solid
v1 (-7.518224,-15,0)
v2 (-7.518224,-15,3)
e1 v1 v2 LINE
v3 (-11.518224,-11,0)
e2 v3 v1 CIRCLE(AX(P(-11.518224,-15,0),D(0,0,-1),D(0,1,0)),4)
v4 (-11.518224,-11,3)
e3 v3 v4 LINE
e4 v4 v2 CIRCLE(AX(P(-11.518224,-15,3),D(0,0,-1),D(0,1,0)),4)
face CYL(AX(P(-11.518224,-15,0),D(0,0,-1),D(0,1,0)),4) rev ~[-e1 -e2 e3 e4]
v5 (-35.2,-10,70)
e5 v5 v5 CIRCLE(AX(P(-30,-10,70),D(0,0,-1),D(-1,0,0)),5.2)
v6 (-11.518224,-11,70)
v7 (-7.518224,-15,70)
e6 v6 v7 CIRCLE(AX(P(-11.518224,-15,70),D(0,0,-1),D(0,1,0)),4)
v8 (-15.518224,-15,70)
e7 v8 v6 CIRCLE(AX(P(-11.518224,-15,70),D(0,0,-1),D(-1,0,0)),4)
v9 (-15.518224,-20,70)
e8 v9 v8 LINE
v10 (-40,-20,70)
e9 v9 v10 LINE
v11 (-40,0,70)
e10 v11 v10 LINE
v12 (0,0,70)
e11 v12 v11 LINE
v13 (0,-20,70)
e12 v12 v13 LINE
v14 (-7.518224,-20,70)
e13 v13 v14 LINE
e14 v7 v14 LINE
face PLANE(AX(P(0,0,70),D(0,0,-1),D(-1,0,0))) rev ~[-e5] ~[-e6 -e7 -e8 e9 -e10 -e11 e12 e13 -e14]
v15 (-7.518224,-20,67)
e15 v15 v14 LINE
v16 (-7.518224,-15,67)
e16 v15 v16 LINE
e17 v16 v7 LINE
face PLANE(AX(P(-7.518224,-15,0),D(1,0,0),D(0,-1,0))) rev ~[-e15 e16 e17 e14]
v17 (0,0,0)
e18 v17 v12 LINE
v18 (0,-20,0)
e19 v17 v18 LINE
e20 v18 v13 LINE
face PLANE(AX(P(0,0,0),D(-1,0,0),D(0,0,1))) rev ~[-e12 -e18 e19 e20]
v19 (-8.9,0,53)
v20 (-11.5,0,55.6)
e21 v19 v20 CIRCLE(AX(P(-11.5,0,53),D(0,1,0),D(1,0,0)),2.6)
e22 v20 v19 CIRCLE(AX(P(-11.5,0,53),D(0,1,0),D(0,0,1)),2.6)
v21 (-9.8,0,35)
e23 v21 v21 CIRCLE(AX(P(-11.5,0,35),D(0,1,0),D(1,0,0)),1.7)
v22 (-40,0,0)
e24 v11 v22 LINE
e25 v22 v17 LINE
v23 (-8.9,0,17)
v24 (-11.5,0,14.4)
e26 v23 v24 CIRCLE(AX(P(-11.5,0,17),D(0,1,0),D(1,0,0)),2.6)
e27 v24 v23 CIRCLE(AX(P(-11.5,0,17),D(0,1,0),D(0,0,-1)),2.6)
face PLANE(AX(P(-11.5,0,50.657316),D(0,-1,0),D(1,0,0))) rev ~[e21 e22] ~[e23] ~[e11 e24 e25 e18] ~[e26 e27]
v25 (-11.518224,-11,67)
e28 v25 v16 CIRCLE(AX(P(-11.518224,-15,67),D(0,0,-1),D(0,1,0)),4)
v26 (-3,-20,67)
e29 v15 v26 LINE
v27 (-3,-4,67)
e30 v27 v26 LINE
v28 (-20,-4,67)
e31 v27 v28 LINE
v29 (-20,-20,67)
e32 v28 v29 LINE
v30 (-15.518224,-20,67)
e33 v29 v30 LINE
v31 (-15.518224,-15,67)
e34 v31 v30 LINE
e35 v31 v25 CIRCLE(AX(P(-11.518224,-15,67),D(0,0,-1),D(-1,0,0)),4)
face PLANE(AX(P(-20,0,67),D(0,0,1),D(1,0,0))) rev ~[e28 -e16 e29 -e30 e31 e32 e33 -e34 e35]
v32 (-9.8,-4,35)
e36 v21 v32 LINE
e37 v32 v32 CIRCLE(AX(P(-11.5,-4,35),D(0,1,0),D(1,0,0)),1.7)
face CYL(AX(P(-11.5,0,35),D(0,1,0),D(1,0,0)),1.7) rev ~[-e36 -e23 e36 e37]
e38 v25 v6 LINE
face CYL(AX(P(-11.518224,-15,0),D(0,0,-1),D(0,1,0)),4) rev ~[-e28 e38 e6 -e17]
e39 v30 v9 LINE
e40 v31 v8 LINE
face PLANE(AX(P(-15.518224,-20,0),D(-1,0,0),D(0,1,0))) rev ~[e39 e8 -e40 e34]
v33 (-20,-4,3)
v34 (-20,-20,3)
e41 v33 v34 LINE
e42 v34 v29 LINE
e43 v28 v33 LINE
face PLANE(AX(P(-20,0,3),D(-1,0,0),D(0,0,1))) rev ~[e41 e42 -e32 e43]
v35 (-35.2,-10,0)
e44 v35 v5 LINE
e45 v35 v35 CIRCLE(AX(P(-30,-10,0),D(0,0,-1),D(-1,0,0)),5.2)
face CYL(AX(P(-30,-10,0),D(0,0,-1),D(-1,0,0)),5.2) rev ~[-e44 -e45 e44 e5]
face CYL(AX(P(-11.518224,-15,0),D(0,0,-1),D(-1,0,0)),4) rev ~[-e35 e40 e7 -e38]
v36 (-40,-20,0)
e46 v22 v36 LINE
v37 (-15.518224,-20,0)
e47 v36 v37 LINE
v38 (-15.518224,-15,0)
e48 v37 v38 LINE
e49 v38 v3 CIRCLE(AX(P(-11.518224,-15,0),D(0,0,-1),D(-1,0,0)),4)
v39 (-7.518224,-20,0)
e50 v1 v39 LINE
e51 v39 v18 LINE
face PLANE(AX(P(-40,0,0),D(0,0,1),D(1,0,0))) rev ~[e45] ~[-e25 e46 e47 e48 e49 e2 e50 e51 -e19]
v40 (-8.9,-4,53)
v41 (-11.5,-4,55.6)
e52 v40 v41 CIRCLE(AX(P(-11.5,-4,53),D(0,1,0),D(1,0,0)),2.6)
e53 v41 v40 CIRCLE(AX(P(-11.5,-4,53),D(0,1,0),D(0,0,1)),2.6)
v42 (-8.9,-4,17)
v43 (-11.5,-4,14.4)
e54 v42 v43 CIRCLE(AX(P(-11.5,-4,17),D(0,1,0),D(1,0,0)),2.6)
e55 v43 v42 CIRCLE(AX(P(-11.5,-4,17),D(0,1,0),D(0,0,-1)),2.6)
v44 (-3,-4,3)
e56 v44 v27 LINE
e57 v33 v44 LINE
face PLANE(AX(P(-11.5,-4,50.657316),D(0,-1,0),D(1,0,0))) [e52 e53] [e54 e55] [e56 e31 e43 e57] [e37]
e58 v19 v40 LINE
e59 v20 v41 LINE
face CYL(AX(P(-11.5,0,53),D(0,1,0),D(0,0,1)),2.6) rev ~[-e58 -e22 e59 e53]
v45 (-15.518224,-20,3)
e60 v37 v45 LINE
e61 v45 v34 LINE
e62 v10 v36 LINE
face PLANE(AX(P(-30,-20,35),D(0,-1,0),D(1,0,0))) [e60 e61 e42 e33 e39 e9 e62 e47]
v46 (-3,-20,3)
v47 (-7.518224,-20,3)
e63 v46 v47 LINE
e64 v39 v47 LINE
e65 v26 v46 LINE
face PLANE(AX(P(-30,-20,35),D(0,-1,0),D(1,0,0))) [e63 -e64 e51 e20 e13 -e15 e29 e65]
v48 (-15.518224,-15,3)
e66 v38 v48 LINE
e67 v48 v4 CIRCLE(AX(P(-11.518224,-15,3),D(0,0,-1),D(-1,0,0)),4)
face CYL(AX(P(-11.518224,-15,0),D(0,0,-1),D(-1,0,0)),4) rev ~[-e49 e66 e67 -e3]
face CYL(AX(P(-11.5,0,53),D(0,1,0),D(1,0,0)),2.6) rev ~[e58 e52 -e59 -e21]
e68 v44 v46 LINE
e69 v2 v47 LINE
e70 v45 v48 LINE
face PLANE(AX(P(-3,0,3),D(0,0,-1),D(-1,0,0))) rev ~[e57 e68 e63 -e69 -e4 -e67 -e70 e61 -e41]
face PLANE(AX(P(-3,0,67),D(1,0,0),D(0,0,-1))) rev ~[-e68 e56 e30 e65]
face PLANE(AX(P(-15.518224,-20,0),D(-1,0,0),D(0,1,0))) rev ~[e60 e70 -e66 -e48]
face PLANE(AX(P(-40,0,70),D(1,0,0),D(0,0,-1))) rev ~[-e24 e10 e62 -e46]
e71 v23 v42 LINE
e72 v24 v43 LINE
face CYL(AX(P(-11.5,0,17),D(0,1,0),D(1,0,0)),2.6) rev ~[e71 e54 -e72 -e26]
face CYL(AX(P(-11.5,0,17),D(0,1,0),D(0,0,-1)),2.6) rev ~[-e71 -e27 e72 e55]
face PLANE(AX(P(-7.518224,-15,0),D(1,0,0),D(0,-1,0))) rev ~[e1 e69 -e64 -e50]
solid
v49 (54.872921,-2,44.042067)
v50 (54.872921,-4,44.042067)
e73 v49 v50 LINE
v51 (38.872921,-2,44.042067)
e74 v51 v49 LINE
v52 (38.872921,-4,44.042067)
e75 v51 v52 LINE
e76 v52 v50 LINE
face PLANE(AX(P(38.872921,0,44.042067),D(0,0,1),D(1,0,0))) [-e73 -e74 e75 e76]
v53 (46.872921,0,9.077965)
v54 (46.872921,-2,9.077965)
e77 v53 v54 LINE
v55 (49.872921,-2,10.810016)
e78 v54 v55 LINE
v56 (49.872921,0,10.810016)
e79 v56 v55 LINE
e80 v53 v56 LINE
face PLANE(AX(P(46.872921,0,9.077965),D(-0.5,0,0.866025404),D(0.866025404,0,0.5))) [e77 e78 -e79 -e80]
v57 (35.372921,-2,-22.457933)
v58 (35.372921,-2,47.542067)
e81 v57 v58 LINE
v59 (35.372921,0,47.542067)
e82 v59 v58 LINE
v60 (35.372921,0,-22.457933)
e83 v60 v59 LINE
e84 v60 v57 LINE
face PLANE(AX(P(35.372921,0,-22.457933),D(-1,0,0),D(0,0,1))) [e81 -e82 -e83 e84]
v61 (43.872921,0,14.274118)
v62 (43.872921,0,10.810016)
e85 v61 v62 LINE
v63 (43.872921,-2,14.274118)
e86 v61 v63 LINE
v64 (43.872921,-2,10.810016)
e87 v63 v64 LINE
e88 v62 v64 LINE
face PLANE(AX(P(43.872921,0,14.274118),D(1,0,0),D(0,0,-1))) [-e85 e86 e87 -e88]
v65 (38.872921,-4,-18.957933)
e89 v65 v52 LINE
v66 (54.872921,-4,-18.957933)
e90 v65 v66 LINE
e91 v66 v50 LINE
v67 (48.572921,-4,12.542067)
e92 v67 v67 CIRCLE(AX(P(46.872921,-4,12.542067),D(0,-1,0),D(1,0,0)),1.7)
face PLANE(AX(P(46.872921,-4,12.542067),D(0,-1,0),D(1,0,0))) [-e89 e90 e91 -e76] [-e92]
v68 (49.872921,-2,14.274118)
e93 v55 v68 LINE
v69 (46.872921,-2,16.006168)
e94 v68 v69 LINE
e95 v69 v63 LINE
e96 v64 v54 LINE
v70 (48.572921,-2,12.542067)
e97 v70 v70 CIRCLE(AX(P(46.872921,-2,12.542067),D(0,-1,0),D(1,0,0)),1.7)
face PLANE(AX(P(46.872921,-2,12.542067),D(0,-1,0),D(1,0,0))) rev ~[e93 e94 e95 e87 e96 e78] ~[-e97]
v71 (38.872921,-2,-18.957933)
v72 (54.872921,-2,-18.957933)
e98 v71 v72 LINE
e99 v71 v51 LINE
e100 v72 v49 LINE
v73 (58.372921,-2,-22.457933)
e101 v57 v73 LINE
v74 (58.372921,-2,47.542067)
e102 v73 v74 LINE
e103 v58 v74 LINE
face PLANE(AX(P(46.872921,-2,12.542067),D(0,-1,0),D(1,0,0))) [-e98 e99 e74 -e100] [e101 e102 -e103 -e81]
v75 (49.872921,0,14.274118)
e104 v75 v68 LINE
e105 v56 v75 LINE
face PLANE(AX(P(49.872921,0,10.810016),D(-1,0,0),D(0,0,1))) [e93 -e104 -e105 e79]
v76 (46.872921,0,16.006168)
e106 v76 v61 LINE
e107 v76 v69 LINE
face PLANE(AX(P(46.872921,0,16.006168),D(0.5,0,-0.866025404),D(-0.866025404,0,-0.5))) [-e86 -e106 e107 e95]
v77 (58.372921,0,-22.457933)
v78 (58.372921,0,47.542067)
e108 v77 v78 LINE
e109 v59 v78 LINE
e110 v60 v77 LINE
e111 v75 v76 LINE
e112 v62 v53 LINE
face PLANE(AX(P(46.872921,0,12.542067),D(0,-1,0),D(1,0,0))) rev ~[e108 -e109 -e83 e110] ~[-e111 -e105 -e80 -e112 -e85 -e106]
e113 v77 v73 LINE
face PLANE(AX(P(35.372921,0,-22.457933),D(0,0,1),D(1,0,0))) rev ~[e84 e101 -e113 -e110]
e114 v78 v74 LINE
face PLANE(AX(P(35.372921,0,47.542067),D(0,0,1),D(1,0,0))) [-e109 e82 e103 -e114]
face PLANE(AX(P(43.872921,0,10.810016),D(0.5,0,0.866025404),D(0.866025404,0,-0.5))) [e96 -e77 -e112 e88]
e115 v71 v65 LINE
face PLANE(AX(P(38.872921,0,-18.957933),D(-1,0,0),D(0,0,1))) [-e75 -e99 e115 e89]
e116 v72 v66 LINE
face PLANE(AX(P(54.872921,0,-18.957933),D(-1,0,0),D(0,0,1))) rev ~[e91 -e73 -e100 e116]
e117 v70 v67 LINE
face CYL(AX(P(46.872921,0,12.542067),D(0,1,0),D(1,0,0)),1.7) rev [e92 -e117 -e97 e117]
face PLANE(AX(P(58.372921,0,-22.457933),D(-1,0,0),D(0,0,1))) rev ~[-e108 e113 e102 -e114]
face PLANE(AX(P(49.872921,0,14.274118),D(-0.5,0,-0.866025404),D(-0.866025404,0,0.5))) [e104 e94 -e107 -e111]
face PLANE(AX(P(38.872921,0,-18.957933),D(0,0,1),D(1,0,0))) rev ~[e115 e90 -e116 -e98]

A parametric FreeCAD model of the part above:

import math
import FreeCAD as App
import Part
import Sketcher

V = App.Vector
Q = App.Units.Quantity


def add_polygon(sketch, points):
    """Adds a closed chain of lines whose ends are joined by coincident constraints."""
    first, n = sketch.GeometryCount, len(points)
    for a, b in zip(points, points[1:] + points[:1]):
        sketch.addGeometry(Part.LineSegment(App.Vector(*a, 0), App.Vector(*b, 0)), False)
    for i in range(n):
        sketch.addConstraint(Sketcher.Constraint("Coincident", first + i, 2, first + (i + 1) % n, 1))

doc = App.newDocument("Part")
body = doc.addObject("PartDesign::Body", "Body")

sketch1 = body.newObject("Sketcher::SketchObject", "Sketch")
sketch1.AttachmentSupport = (doc.getObject("XZ_Plane"), [""])
sketch1.MapMode = "FlatFace"
add_polygon(sketch1, [(-40, 0), (0, 0), (0, 70), (-40, 70)])
add_polygon(sketch1, [(-20, 3), (-20, 67), (-3, 67), (-3, 3)])
sketch1.addConstraint([
    Sketcher.Constraint("Horizontal", 0),
    Sketcher.Constraint("Vertical", 1),
    Sketcher.Constraint("Horizontal", 2),
    Sketcher.Constraint("Vertical", 3),
    Sketcher.Constraint("Vertical", 4),
    Sketcher.Constraint("Horizontal", 5),
    Sketcher.Constraint("Vertical", 6),
    Sketcher.Constraint("Horizontal", 7),
    Sketcher.Constraint("Coincident", 0, 2, -1, 1),
    Sketcher.Constraint("DistanceX", 0, 1, 0, 2, 40.0),
    Sketcher.Constraint("DistanceX", 5, 1, 5, 2, 17.0),
    Sketcher.Constraint("DistanceY", 1, 1, 1, 2, 70.0),
    Sketcher.Constraint("DistanceY", 4, 1, 4, 2, 64.0),
    Sketcher.Constraint("DistanceX", 4, 2, -1, 1, 20.0),
    Sketcher.Constraint("DistanceY", -1, 1, 4, 2, 67.0),
])
pad1 = body.newObject("PartDesign::Pad", "Pad")
pad1.Profile = sketch1
pad1.Length = 20

sketch2 = body.newObject("Sketcher::SketchObject", "Sketch001")
sketch2.AttachmentSupport = (doc.getObject("XZ_Plane"), [""])
sketch2.MapMode = "FlatFace"
add_polygon(sketch2, [(-20, 67), (-20, 3), (-3, 3), (-3, 67)])
sketch2.addGeometry(Part.ArcOfCircle(Part.Circle(V(-11.5, 17, 0), V(0, 0, 1), 2.6), math.radians(0), math.radians(270)), False)
sketch2.addGeometry(Part.ArcOfCircle(Part.Circle(V(-11.5, 17, 0), V(0, 0, 1), 2.6), math.radians(-90), math.radians(0)), False)
sketch2.addGeometry(Part.ArcOfCircle(Part.Circle(V(-11.5, 53, 0), V(0, 0, 1), 2.6), math.radians(0), math.radians(90)), False)
sketch2.addGeometry(Part.ArcOfCircle(Part.Circle(V(-11.5, 53, 0), V(0, 0, 1), 2.6), math.radians(90), math.radians(360)), False)
sketch2.addGeometry(Part.Circle(V(-11.5, 35, 0), V(0, 0, 1), 1.7), False)
sketch2.addConstraint([
    Sketcher.Constraint("Tangent", 4, 1, 5, 2),
    Sketcher.Constraint("Coincident", 5, 1, 4, 2),
    Sketcher.Constraint("Tangent", 6, 1, 7, 2),
    Sketcher.Constraint("Coincident", 7, 1, 6, 2),
    Sketcher.Constraint("Vertical", 0),
    Sketcher.Constraint("Horizontal", 1),
    Sketcher.Constraint("Vertical", 2),
    Sketcher.Constraint("Horizontal", 3),
    Sketcher.Constraint("Equal", 5, 6),
    Sketcher.Constraint("Horizontal", 5, 3, 4, 1),
    Sketcher.Constraint("Horizontal", 7, 3, 6, 1),
    Sketcher.Constraint("Vertical", 5, 3, 6, 3),
    Sketcher.Constraint("Vertical", 7, 3, 8, 3),
    Sketcher.Constraint("Vertical", 8, 3, 5, 1),
    Sketcher.Constraint("Vertical", 5, 1, 7, 1),
    Sketcher.Constraint("Diameter", 8, 3.4),
    Sketcher.Constraint("Radius", 4, 2.6),
    Sketcher.Constraint("DistanceX", 1, 1, 1, 2, 17.0),
    Sketcher.Constraint("DistanceY", 0, 2, 0, 1, 64.0),
    Sketcher.Constraint("DistanceY", -1, 1, 4, 3, 17.0),
    Sketcher.Constraint("DistanceY", -1, 1, 6, 3, 53.0),
    Sketcher.Constraint("DistanceY", -1, 1, 8, 3, 35.0),
    Sketcher.Constraint("DistanceX", 0, 2, -1, 1, 20.0),
    Sketcher.Constraint("DistanceY", -1, 1, 0, 2, 3.0),
    Sketcher.Constraint("DistanceX", 4, 3, -1, 1, 11.5),
])
pad2 = body.newObject("PartDesign::Pad", "Pad001")
pad2.Profile = sketch2
pad2.Length = 4

sketch3 = body.newObject("Sketcher::SketchObject", "Sketch002")
sketch3.AttachmentSupport = (doc.getObject("XY_Plane"), [""])
sketch3.MapMode = "FlatFace"
sketch3.addGeometry([
    Part.ArcOfCircle(Part.Circle(V(-11.5, -15, 0), V(0, 0, 1), 4), math.radians(90), math.radians(180)),
    Part.ArcOfCircle(Part.Circle(V(-11.5, -15, 0), V(0, 0, 1), 4), math.radians(0), math.radians(90)),
    Part.LineSegment(V(-7.5, -15, 0), V(-7.5, -20, 0)),
    Part.LineSegment(V(-7.5, -20, 0), V(-15.5, -20, 0)),
    Part.LineSegment(V(-15.5, -20, 0), V(-15.5, -15, 0)),
], False)
sketch3.addConstraint([
    Sketcher.Constraint("Tangent", 0, 1, 1, 2),
    Sketcher.Constraint("Tangent", 1, 1, 2, 1),
    Sketcher.Constraint("Coincident", 2, 2, 3, 1),
    Sketcher.Constraint("Coincident", 3, 2, 4, 1),
    Sketcher.Constraint("Tangent", 4, 2, 0, 2),
    Sketcher.Constraint("Vertical", 2),
    Sketcher.Constraint("Horizontal", 3),
    Sketcher.Constraint("Vertical", 4),
    Sketcher.Constraint("Equal", 0, 1),
    Sketcher.Constraint("Vertical", 1, 3, 0, 1),
    Sketcher.Constraint("Radius", 0, 4.0),
    Sketcher.Constraint("DistanceY", 2, 2, 2, 1, 5.0),
    Sketcher.Constraint("DistanceY", 0, 3, -1, 1, 15.0),
    Sketcher.Constraint("DistanceX", 0, 3, -1, 1, 11.518224),
])
pocket1 = body.newObject("PartDesign::Pocket", "Pocket")
pocket1.Profile = sketch3
pocket1.Length = 80
pocket1.Reversed = True

sketch4 = body.newObject("Sketcher::SketchObject", "Sketch003")
sketch4.AttachmentSupport = (doc.getObject("XY_Plane"), [""])
sketch4.MapMode = "FlatFace"
sketch4.addGeometry(Part.Circle(V(-30, -10, 0), V(0, 0, 1), 5), False)
sketch4.addConstraint([
    Sketcher.Constraint("Diameter", 0, 10.4),
    Sketcher.Constraint("DistanceX", 0, 3, -1, 1, 30.0),
    Sketcher.Constraint("DistanceY", 0, 3, -1, 1, 10.0),
])
pocket2 = body.newObject("PartDesign::Pocket", "Pocket001")
pocket2.Profile = sketch4
pocket2.Length = 80
pocket2.Reversed = True
body2 = doc.addObject("PartDesign::Body", "Body001")

sketch5 = body2.newObject("Sketcher::SketchObject", "Sketch004")
sketch5.AttachmentSupport = (doc.getObject("XZ_Plane001"), [""])
sketch5.MapMode = "FlatFace"
add_polygon(sketch5, [(35, 48), (35, -22), (58, -22), (58, 48)])
add_polygon(sketch5, [(55, -19), (39, -19), (39, 44), (55, 44)])
sketch5.addConstraint([
    Sketcher.Constraint("Vertical", 0),
    Sketcher.Constraint("Horizontal", 1),
    Sketcher.Constraint("Vertical", 2),
    Sketcher.Constraint("Horizontal", 3),
    Sketcher.Constraint("Horizontal", 4),
    Sketcher.Constraint("Vertical", 5),
    Sketcher.Constraint("Horizontal", 6),
    Sketcher.Constraint("Vertical", 7),
    Sketcher.Constraint("DistanceX", 1, 1, 1, 2, 23.0),
    Sketcher.Constraint("DistanceX", 4, 2, 4, 1, 16.0),
    Sketcher.Constraint("DistanceY", 0, 2, 0, 1, 70.0),
    Sketcher.Constraint("DistanceY", 5, 1, 5, 2, 63.0),
    Sketcher.Constraint("DistanceX", 0, 2, 4, 2, 3.5),
    Sketcher.Constraint("DistanceY", 0, 2, 4, 2, 3.5),
    Sketcher.Constraint("DistanceX", -1, 1, 0, 2, 35.372921),
    Sketcher.Constraint("DistanceY", 0, 2, -1, 1, 22.457933),
])
pad3 = body2.newObject("PartDesign::Pad", "Pad002")
pad3.Profile = sketch5
pad3.Length = 2

sketch6 = body2.newObject("Sketcher::SketchObject", "Sketch005")
sketch6.AttachmentSupport = (doc.getObject("XZ_Plane001"), [""])
sketch6.MapMode = "FlatFace"
add_polygon(sketch6, [(38.9, 44), (38.9, -19), (54.9, -19), (54.9, 44)])
add_polygon(sketch6, [(49.9, 10.8), (46.9, 9.1), (43.9, 10.8), (43.9, 14.3), (46.9, 16), (49.9, 14.3)])
sketch6.addConstraint([
    Sketcher.Constraint("Vertical", 0),
    Sketcher.Constraint("Horizontal", 1),
    Sketcher.Constraint("Vertical", 2),
    Sketcher.Constraint("Horizontal", 3),
    Sketcher.Constraint("Vertical", 6),
    Sketcher.Constraint("Vertical", 9),
    Sketcher.Constraint("Parallel", 4, 7),
    Sketcher.Constraint("Parallel", 5, 8),
    Sketcher.Constraint("Horizontal", 6, 2, 8, 2),
    Sketcher.Constraint("Horizontal", 5, 2, 9, 2),
    Sketcher.Constraint("Vertical", 4, 2, 7, 2),
    Sketcher.Constraint("DistanceX", 1, 1, 1, 2, 16.0),
    Sketcher.Constraint("DistanceY", 0, 2, 0, 1, 63.0),
    Sketcher.Constraint("Angle", 4, Q("-150 deg")),
    Sketcher.Constraint("DistanceX", 0, 2, 4, 2, 8.0),
    Sketcher.Constraint("DistanceX", 5, 2, 4, 2, 3.0),
    Sketcher.Constraint("DistanceY", 6, 1, 6, 2, 3.464102),
    Sketcher.Constraint("DistanceY", 0, 2, 4, 2, 28.035898),
    Sketcher.Constraint("DistanceX", -1, 1, 0, 2, 38.872921),
    Sketcher.Constraint("DistanceY", -1, 1, 7, 2, 16.006168),
])
pad4 = body2.newObject("PartDesign::Pad", "Pad003")
pad4.Profile = sketch6
pad4.Length = 4

sketch7 = body2.newObject("Sketcher::SketchObject", "Sketch006")
sketch7.AttachmentSupport = (doc.getObject("XZ_Plane001"), [""])
sketch7.MapMode = "FlatFace"
add_polygon(sketch7, [(43.9, 14.3), (43.9, 10.8), (46.9, 9.1), (49.9, 10.8), (49.9, 14.3), (46.9, 16)])
sketch7.addGeometry(Part.Circle(V(46.9, 12.5, 0), V(0, 0, 1), 1.7), False)
sketch7.addConstraint([
    Sketcher.Constraint("Vertical", 0),
    Sketcher.Constraint("Vertical", 3),
    Sketcher.Constraint("Parallel", 1, 4),
    Sketcher.Constraint("Parallel", 2, 5),
    Sketcher.Constraint("Horizontal", 0, 2, 2, 2),
    Sketcher.Constraint("Horizontal", 3, 2, 5, 2),
    Sketcher.Constraint("Vertical", 6, 3, 1, 2),
    Sketcher.Constraint("Vertical", 1, 2, 4, 2),
    Sketcher.Constraint("Diameter", 6, 3.4),
    Sketcher.Constraint("Angle", 1, Q("-30 deg")),
    Sketcher.Constraint("DistanceX", 0, 2, 6, 3, 3.0),
    Sketcher.Constraint("DistanceY", 0, 2, 0, 1, 3.464102),
    Sketcher.Constraint("DistanceY", 1, 2, 6, 3, 3.464102),
    Sketcher.Constraint("DistanceX", -1, 1, 6, 3, 46.872921),
    Sketcher.Constraint("DistanceY", -1, 1, 4, 2, 16.006168),
])
pad5 = body2.newObject("PartDesign::Pad", "Pad004")
pad5.Profile = sketch7
pad5.Length = 4

sketch8 = body2.newObject("Sketcher::SketchObject", "Sketch007")
sketch8.AttachmentSupport = (doc.getObject("XZ_Plane001"), [""])
sketch8.MapMode = "FlatFace"
add_polygon(sketch8, [(43.9, 14.3), (43.9, 10.8), (46.9, 9.1), (49.9, 10.8), (49.9, 14.3), (46.9, 16)])
sketch8.addGeometry(Part.Circle(V(46.9, 12.5, 0), V(0, 0, 1), 1.7), False)
sketch8.addConstraint([
    Sketcher.Constraint("Vertical", 0),
    Sketcher.Constraint("Vertical", 3),
    Sketcher.Constraint("Parallel", 1, 4),
    Sketcher.Constraint("Parallel", 2, 5),
    Sketcher.Constraint("Horizontal", 0, 2, 2, 2),
    Sketcher.Constraint("Horizontal", 3, 2, 5, 2),
    Sketcher.Constraint("Vertical", 6, 3, 1, 2),
    Sketcher.Constraint("Vertical", 1, 2, 4, 2),
    Sketcher.Constraint("Diameter", 6, 3.4),
    Sketcher.Constraint("Angle", 1, Q("-30 deg")),
    Sketcher.Constraint("DistanceX", 0, 2, 6, 3, 3.0),
    Sketcher.Constraint("DistanceY", 0, 2, 0, 1, 3.464102),
    Sketcher.Constraint("DistanceY", 1, 2, 6, 3, 3.464102),
    Sketcher.Constraint("DistanceX", -1, 1, 6, 3, 46.872921),
    Sketcher.Constraint("DistanceY", -1, 1, 4, 2, 16.006168),
])
pocket3 = body2.newObject("PartDesign::Pocket", "Pocket002")
pocket3.Profile = sketch8
pocket3.Length = 2
pocket3.Reversed = True

doc.recompute()
